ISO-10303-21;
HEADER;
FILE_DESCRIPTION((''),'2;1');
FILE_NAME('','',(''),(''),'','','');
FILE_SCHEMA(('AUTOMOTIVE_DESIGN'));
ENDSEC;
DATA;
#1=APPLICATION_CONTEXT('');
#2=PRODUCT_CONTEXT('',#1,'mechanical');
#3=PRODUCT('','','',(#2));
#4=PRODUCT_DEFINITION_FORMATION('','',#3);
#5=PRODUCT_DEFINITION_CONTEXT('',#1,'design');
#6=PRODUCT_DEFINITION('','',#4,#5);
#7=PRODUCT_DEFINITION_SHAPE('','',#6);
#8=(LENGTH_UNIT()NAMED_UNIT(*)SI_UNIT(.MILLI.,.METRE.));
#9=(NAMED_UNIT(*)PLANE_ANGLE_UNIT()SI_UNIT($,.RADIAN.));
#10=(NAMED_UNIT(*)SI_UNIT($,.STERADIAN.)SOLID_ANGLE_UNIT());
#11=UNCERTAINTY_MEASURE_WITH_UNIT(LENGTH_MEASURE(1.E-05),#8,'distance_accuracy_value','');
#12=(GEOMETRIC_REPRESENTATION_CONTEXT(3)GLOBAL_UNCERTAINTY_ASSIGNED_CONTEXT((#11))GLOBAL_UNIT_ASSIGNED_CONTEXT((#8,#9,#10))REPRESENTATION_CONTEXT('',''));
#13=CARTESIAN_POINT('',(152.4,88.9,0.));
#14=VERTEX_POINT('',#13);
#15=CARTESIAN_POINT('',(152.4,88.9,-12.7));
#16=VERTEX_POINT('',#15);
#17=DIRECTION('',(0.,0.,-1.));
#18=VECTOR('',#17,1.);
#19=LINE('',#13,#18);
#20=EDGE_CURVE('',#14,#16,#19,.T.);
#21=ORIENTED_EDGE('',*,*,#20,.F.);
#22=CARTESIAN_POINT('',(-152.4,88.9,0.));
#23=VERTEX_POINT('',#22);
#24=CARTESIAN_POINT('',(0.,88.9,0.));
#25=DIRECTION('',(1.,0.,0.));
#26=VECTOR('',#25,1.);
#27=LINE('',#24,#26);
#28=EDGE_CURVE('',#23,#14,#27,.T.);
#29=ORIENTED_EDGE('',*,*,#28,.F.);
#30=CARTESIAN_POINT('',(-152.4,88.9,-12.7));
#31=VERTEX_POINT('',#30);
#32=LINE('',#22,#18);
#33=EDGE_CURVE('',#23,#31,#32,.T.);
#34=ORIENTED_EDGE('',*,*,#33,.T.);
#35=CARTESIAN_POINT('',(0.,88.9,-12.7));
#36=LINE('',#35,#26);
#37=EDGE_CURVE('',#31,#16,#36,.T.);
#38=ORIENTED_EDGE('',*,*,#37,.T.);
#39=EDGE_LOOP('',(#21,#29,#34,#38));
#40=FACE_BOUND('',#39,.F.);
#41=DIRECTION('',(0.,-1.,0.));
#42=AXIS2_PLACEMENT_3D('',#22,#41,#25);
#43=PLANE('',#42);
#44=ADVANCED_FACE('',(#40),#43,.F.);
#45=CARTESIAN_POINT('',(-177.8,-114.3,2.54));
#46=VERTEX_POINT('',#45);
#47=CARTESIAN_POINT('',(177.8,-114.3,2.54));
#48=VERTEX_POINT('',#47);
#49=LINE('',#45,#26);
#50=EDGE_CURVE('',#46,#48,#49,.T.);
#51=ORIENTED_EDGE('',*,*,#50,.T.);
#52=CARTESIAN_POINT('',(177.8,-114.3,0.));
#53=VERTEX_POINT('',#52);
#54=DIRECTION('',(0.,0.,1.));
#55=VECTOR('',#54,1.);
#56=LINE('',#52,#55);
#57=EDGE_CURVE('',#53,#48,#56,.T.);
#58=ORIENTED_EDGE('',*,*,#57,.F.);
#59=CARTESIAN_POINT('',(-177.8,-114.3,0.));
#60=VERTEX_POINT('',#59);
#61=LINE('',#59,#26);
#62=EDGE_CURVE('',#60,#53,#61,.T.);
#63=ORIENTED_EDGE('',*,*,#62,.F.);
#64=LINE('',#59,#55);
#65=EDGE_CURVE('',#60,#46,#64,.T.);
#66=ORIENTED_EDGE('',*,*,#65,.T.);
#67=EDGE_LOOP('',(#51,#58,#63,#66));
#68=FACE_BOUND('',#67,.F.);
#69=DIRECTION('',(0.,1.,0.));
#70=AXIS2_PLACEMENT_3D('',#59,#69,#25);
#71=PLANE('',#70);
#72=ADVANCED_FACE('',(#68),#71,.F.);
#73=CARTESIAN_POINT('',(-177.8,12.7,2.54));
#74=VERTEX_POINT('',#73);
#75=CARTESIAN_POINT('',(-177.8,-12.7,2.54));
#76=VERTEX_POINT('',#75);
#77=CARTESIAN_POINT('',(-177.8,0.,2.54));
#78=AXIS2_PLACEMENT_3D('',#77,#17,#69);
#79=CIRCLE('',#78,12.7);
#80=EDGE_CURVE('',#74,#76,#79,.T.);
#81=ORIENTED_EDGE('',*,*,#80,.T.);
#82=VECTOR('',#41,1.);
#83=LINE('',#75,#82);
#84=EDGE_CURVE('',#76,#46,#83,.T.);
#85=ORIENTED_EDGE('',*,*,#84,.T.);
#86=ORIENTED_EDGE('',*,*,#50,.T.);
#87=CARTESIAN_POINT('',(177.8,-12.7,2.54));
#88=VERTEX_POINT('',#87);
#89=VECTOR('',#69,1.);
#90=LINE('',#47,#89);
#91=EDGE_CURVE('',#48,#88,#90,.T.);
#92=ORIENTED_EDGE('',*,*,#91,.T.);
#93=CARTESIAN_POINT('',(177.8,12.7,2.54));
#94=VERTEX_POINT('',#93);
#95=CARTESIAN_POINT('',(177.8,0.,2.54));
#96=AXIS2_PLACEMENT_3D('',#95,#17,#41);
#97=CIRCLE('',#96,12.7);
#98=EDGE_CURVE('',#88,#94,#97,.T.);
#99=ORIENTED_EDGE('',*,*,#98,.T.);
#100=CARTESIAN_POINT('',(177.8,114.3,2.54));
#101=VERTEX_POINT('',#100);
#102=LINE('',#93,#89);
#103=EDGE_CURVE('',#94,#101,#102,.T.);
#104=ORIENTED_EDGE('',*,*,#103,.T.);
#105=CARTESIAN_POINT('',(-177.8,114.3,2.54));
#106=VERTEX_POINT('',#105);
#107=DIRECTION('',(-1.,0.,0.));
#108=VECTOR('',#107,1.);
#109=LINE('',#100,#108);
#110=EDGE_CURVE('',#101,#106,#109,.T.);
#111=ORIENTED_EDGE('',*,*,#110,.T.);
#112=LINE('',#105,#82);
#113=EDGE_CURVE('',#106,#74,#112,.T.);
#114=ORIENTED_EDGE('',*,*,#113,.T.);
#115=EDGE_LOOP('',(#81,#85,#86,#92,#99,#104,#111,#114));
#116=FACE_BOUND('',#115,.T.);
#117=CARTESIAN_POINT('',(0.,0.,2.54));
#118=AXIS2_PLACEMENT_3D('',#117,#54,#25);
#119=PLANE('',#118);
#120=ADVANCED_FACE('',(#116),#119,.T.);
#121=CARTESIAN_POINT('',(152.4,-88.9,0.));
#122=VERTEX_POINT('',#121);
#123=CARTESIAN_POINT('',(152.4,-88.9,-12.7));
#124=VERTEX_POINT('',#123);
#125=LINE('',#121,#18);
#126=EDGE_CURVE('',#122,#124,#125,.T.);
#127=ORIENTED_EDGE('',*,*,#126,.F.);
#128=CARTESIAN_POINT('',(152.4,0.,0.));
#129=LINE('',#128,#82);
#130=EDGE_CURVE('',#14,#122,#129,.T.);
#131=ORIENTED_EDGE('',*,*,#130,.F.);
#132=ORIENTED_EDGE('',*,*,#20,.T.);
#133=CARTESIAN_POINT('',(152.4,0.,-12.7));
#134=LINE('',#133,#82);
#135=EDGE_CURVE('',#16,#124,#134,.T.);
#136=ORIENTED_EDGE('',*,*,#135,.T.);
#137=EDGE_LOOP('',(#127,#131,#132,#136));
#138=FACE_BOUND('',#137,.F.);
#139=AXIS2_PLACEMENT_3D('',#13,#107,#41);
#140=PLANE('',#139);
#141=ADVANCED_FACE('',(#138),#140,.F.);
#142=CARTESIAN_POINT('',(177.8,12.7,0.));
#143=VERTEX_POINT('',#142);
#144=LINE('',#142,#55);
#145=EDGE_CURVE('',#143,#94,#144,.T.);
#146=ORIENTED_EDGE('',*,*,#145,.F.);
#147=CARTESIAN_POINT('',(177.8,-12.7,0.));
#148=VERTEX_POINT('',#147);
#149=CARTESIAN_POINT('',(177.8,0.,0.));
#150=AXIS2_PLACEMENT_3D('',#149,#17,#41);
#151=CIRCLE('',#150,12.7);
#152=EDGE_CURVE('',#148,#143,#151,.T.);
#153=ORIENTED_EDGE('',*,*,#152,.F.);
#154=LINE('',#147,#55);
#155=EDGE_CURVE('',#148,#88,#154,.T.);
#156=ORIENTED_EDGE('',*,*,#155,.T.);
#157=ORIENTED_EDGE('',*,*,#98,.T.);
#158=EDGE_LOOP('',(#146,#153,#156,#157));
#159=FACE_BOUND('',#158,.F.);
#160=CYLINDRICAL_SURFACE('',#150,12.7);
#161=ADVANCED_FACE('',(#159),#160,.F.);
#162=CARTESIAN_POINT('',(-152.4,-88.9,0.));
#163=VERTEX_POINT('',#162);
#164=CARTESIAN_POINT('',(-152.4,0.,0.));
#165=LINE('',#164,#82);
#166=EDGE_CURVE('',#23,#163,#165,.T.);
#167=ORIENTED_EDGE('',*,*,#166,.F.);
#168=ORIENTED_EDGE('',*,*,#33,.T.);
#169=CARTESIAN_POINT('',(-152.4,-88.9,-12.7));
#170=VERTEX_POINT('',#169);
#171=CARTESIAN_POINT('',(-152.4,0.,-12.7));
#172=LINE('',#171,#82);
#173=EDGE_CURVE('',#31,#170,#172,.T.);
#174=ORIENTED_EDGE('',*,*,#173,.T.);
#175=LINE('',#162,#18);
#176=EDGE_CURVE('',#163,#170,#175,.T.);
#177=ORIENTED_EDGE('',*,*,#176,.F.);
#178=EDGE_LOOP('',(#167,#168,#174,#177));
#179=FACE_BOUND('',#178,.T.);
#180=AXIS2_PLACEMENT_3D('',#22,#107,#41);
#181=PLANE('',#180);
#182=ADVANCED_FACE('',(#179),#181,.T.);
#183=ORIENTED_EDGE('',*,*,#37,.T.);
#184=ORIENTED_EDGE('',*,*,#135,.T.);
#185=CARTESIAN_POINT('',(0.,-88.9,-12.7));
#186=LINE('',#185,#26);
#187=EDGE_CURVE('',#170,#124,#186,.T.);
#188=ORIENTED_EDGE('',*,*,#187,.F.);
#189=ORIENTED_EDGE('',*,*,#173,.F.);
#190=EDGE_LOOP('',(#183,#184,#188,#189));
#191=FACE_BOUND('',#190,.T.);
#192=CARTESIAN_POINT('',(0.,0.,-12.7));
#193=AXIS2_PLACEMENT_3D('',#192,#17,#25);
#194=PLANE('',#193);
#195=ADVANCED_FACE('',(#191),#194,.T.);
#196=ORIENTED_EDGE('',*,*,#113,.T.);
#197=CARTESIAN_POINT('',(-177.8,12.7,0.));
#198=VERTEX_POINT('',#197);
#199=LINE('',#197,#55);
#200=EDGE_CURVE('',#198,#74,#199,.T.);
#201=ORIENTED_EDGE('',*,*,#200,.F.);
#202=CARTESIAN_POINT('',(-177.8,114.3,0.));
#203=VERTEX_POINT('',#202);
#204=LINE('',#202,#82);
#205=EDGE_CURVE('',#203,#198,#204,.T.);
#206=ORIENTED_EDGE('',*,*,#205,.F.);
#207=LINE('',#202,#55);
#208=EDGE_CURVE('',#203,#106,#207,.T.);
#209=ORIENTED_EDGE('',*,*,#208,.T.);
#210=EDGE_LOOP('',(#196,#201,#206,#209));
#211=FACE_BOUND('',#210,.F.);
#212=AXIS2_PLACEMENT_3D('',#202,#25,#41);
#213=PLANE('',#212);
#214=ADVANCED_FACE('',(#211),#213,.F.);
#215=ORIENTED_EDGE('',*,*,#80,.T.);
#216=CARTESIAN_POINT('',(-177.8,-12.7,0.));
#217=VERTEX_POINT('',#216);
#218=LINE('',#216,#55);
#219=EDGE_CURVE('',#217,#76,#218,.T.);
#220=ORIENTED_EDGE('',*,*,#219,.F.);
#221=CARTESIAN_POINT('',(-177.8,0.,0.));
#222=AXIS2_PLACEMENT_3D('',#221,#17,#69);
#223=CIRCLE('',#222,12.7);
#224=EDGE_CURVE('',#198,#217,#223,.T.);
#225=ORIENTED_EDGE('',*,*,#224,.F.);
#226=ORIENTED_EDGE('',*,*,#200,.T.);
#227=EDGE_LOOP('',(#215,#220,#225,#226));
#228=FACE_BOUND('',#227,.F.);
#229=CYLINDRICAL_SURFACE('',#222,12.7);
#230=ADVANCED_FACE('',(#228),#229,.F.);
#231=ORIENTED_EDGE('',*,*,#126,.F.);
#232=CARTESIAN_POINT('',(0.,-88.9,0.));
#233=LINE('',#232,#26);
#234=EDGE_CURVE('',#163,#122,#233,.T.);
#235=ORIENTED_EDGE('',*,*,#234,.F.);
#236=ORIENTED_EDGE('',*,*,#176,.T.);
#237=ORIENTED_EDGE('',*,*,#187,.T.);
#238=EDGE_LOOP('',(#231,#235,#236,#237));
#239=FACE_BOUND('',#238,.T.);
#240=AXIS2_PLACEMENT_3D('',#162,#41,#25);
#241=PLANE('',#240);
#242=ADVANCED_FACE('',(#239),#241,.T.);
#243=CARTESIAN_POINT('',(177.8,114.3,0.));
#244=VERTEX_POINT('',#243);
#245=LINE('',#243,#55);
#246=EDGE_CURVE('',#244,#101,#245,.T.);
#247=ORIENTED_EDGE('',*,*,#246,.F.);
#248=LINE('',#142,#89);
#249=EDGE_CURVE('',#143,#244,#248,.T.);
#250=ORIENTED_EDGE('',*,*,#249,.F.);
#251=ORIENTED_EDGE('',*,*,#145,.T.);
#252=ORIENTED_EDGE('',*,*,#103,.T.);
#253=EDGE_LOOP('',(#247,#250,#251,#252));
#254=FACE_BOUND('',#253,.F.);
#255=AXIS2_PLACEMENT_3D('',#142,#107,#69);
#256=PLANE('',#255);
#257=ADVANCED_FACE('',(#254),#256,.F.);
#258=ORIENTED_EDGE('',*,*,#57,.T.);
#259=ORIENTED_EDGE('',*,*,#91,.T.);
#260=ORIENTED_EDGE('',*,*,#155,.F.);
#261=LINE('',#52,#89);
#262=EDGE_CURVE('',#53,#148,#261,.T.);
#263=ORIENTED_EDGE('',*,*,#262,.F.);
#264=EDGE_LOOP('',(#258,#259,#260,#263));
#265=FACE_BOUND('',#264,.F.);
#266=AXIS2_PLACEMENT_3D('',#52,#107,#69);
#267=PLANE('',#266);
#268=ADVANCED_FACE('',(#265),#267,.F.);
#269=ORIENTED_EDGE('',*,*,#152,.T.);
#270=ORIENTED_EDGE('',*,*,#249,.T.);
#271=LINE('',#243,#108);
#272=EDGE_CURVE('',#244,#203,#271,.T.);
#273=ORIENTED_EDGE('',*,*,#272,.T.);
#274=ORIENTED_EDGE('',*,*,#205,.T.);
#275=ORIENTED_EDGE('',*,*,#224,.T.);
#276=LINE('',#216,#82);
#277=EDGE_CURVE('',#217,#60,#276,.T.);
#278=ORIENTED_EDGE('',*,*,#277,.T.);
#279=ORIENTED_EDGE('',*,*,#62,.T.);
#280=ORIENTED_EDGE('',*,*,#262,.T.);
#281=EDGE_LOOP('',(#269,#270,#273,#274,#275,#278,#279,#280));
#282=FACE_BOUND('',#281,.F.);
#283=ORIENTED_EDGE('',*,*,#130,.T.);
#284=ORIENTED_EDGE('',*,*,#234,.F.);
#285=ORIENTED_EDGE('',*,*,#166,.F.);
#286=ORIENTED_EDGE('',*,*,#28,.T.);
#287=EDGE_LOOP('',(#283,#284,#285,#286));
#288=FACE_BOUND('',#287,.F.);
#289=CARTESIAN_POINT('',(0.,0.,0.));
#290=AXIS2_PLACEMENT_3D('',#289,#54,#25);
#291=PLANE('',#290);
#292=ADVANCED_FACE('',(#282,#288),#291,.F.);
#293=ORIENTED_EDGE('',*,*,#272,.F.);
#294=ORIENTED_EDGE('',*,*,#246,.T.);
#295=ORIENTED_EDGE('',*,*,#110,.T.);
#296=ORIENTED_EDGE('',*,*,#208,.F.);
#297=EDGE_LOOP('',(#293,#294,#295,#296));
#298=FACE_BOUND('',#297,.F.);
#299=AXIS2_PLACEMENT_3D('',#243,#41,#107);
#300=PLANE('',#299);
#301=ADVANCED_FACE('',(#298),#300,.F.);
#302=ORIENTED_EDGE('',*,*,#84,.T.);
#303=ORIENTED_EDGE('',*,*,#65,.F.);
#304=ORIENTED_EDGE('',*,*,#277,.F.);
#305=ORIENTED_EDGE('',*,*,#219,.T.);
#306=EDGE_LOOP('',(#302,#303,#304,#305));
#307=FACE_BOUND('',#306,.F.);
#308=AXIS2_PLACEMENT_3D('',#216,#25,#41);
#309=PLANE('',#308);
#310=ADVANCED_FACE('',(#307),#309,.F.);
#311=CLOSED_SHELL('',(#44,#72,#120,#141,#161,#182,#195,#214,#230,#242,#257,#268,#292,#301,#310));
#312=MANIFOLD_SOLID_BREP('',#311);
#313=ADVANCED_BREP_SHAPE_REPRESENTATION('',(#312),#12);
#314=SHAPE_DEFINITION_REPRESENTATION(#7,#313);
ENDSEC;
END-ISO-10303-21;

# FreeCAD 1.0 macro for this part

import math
import FreeCAD as App
import Part
import Sketcher
from FreeCAD import Vector
Q = App.Units.Quantity


def add_polygon(sketch, points):
    """Adds a closed chain of lines whose ends are joined by coincident constraints."""
    first, n = sketch.GeometryCount, len(points)
    for a, b in zip(points, points[1:] + points[:1]):
        sketch.addGeometry(Part.LineSegment(App.Vector(*a, 0), App.Vector(*b, 0)), False)
    for i in range(n):
        sketch.addConstraint(Sketcher.Constraint("Coincident", first + i, 2, first + (i + 1) % n, 1))

doc = App.newDocument("Part")
body = doc.addObject("PartDesign::Body", "Body")

# Sketch on XY plane
sketch1 = doc.addObject("Sketcher::SketchObject", "Sketch")
body.addObject(sketch1)
sketch1.AttachmentSupport = (doc.XY_Plane, [""])
sketch1.MapMode = "FlatFace"
sketch1.addGeometry(Part.LineSegment(Vector(178, 114, 0), Vector(-178, 114, 0)), False)
sketch1.addGeometry(Part.LineSegment(Vector(-178, 114, 0), Vector(-178, 13, 0)), False)
sketch1.addGeometry(Part.ArcOfCircle(Part.Circle(Vector(-178, 0, 0), Vector(0, 0, 1), 13), math.radians(-90), math.radians(90)), False)
sketch1.addGeometry(Part.LineSegment(Vector(-178, -13, 0), Vector(-178, -114, 0)), False)
sketch1.addGeometry(Part.LineSegment(Vector(-178, -114, 0), Vector(178, -114, 0)), False)
sketch1.addGeometry(Part.LineSegment(Vector(178, -114, 0), Vector(178, -13, 0)), False)
sketch1.addGeometry(Part.ArcOfCircle(Part.Circle(Vector(178, 0, 0), Vector(0, 0, 1), 13), math.radians(90), math.radians(270)), False)
sketch1.addGeometry(Part.LineSegment(Vector(178, 13, 0), Vector(178, 114, 0)), False)
sketch1.addConstraint(Sketcher.Constraint("Coincident", 0, 2, 1, 1))
sketch1.addConstraint(Sketcher.Constraint("Coincident", 1, 2, 2, 2))
sketch1.addConstraint(Sketcher.Constraint("Coincident", 2, 1, 3, 1))
sketch1.addConstraint(Sketcher.Constraint("Coincident", 3, 2, 4, 1))
sketch1.addConstraint(Sketcher.Constraint("Coincident", 4, 2, 5, 1))
sketch1.addConstraint(Sketcher.Constraint("Coincident", 5, 2, 6, 2))
sketch1.addConstraint(Sketcher.Constraint("Coincident", 6, 1, 7, 1))
sketch1.addConstraint(Sketcher.Constraint("Coincident", 7, 2, 0, 1))
sketch1.addConstraint(Sketcher.Constraint("Horizontal", 0))
sketch1.addConstraint(Sketcher.Constraint("Vertical", 1))
sketch1.addConstraint(Sketcher.Constraint("Vertical", 3))
sketch1.addConstraint(Sketcher.Constraint("Horizontal", 4))
sketch1.addConstraint(Sketcher.Constraint("Vertical", 5))
sketch1.addConstraint(Sketcher.Constraint("Vertical", 7))
sketch1.addConstraint(Sketcher.Constraint("Equal", 2, 6))
sketch1.addConstraint(Sketcher.Constraint("Symmetric", 2, 3, 6, 3, -1, 1))
sketch1.addConstraint(Sketcher.Constraint("Symmetric", 0, 2, 4, 2, -1, 1))
sketch1.addConstraint(Sketcher.Constraint("Symmetric", 2, 1, 5, 2, -2))
sketch1.addConstraint(Sketcher.Constraint("Vertical", 2, 3, 0, 2))
sketch1.addConstraint(Sketcher.Constraint("Vertical", 5, 2, 6, 1))
sketch1.addConstraint(Sketcher.Constraint("Radius", 2, Q("0.5 in")))
sketch1.addConstraint(Sketcher.Constraint("DistanceX", 0, 2, 0, 1, Q("14 in")))
sketch1.addConstraint(Sketcher.Constraint("DistanceY", 1, 2, 1, 1, Q("4 in")))
pad1 = doc.addObject("PartDesign::Pad", "Pad")
body.addObject(pad1)
pad1.Profile = sketch1
pad1.Length = Q("0.1 in")

# Sketch on XY plane
sketch2 = doc.addObject("Sketcher::SketchObject", "Sketch001")
body.addObject(sketch2)
sketch2.AttachmentSupport = (doc.XY_Plane, [""])
sketch2.MapMode = "FlatFace"
add_polygon(sketch2, [(-152, -89), (-152, 89), (152, 89), (152, -89)])  # lines 0-3
sketch2.addConstraint(Sketcher.Constraint("Vertical", 0))
sketch2.addConstraint(Sketcher.Constraint("Horizontal", 1))
sketch2.addConstraint(Sketcher.Constraint("Vertical", 2))
sketch2.addConstraint(Sketcher.Constraint("Horizontal", 3))
sketch2.addConstraint(Sketcher.Constraint("Symmetric", 0, 2, 2, 2, -1, 1))
sketch2.addConstraint(Sketcher.Constraint("DistanceX", 1, 1, 1, 2, Q("12 in")))
sketch2.addConstraint(Sketcher.Constraint("DistanceY", 0, 1, 0, 2, Q("7 in")))
pad2 = doc.addObject("PartDesign::Pad", "Pad001")
body.addObject(pad2)
pad2.Profile = sketch2
pad2.Length = Q("0.5 in")
pad2.Reversed = True

doc.recompute()
